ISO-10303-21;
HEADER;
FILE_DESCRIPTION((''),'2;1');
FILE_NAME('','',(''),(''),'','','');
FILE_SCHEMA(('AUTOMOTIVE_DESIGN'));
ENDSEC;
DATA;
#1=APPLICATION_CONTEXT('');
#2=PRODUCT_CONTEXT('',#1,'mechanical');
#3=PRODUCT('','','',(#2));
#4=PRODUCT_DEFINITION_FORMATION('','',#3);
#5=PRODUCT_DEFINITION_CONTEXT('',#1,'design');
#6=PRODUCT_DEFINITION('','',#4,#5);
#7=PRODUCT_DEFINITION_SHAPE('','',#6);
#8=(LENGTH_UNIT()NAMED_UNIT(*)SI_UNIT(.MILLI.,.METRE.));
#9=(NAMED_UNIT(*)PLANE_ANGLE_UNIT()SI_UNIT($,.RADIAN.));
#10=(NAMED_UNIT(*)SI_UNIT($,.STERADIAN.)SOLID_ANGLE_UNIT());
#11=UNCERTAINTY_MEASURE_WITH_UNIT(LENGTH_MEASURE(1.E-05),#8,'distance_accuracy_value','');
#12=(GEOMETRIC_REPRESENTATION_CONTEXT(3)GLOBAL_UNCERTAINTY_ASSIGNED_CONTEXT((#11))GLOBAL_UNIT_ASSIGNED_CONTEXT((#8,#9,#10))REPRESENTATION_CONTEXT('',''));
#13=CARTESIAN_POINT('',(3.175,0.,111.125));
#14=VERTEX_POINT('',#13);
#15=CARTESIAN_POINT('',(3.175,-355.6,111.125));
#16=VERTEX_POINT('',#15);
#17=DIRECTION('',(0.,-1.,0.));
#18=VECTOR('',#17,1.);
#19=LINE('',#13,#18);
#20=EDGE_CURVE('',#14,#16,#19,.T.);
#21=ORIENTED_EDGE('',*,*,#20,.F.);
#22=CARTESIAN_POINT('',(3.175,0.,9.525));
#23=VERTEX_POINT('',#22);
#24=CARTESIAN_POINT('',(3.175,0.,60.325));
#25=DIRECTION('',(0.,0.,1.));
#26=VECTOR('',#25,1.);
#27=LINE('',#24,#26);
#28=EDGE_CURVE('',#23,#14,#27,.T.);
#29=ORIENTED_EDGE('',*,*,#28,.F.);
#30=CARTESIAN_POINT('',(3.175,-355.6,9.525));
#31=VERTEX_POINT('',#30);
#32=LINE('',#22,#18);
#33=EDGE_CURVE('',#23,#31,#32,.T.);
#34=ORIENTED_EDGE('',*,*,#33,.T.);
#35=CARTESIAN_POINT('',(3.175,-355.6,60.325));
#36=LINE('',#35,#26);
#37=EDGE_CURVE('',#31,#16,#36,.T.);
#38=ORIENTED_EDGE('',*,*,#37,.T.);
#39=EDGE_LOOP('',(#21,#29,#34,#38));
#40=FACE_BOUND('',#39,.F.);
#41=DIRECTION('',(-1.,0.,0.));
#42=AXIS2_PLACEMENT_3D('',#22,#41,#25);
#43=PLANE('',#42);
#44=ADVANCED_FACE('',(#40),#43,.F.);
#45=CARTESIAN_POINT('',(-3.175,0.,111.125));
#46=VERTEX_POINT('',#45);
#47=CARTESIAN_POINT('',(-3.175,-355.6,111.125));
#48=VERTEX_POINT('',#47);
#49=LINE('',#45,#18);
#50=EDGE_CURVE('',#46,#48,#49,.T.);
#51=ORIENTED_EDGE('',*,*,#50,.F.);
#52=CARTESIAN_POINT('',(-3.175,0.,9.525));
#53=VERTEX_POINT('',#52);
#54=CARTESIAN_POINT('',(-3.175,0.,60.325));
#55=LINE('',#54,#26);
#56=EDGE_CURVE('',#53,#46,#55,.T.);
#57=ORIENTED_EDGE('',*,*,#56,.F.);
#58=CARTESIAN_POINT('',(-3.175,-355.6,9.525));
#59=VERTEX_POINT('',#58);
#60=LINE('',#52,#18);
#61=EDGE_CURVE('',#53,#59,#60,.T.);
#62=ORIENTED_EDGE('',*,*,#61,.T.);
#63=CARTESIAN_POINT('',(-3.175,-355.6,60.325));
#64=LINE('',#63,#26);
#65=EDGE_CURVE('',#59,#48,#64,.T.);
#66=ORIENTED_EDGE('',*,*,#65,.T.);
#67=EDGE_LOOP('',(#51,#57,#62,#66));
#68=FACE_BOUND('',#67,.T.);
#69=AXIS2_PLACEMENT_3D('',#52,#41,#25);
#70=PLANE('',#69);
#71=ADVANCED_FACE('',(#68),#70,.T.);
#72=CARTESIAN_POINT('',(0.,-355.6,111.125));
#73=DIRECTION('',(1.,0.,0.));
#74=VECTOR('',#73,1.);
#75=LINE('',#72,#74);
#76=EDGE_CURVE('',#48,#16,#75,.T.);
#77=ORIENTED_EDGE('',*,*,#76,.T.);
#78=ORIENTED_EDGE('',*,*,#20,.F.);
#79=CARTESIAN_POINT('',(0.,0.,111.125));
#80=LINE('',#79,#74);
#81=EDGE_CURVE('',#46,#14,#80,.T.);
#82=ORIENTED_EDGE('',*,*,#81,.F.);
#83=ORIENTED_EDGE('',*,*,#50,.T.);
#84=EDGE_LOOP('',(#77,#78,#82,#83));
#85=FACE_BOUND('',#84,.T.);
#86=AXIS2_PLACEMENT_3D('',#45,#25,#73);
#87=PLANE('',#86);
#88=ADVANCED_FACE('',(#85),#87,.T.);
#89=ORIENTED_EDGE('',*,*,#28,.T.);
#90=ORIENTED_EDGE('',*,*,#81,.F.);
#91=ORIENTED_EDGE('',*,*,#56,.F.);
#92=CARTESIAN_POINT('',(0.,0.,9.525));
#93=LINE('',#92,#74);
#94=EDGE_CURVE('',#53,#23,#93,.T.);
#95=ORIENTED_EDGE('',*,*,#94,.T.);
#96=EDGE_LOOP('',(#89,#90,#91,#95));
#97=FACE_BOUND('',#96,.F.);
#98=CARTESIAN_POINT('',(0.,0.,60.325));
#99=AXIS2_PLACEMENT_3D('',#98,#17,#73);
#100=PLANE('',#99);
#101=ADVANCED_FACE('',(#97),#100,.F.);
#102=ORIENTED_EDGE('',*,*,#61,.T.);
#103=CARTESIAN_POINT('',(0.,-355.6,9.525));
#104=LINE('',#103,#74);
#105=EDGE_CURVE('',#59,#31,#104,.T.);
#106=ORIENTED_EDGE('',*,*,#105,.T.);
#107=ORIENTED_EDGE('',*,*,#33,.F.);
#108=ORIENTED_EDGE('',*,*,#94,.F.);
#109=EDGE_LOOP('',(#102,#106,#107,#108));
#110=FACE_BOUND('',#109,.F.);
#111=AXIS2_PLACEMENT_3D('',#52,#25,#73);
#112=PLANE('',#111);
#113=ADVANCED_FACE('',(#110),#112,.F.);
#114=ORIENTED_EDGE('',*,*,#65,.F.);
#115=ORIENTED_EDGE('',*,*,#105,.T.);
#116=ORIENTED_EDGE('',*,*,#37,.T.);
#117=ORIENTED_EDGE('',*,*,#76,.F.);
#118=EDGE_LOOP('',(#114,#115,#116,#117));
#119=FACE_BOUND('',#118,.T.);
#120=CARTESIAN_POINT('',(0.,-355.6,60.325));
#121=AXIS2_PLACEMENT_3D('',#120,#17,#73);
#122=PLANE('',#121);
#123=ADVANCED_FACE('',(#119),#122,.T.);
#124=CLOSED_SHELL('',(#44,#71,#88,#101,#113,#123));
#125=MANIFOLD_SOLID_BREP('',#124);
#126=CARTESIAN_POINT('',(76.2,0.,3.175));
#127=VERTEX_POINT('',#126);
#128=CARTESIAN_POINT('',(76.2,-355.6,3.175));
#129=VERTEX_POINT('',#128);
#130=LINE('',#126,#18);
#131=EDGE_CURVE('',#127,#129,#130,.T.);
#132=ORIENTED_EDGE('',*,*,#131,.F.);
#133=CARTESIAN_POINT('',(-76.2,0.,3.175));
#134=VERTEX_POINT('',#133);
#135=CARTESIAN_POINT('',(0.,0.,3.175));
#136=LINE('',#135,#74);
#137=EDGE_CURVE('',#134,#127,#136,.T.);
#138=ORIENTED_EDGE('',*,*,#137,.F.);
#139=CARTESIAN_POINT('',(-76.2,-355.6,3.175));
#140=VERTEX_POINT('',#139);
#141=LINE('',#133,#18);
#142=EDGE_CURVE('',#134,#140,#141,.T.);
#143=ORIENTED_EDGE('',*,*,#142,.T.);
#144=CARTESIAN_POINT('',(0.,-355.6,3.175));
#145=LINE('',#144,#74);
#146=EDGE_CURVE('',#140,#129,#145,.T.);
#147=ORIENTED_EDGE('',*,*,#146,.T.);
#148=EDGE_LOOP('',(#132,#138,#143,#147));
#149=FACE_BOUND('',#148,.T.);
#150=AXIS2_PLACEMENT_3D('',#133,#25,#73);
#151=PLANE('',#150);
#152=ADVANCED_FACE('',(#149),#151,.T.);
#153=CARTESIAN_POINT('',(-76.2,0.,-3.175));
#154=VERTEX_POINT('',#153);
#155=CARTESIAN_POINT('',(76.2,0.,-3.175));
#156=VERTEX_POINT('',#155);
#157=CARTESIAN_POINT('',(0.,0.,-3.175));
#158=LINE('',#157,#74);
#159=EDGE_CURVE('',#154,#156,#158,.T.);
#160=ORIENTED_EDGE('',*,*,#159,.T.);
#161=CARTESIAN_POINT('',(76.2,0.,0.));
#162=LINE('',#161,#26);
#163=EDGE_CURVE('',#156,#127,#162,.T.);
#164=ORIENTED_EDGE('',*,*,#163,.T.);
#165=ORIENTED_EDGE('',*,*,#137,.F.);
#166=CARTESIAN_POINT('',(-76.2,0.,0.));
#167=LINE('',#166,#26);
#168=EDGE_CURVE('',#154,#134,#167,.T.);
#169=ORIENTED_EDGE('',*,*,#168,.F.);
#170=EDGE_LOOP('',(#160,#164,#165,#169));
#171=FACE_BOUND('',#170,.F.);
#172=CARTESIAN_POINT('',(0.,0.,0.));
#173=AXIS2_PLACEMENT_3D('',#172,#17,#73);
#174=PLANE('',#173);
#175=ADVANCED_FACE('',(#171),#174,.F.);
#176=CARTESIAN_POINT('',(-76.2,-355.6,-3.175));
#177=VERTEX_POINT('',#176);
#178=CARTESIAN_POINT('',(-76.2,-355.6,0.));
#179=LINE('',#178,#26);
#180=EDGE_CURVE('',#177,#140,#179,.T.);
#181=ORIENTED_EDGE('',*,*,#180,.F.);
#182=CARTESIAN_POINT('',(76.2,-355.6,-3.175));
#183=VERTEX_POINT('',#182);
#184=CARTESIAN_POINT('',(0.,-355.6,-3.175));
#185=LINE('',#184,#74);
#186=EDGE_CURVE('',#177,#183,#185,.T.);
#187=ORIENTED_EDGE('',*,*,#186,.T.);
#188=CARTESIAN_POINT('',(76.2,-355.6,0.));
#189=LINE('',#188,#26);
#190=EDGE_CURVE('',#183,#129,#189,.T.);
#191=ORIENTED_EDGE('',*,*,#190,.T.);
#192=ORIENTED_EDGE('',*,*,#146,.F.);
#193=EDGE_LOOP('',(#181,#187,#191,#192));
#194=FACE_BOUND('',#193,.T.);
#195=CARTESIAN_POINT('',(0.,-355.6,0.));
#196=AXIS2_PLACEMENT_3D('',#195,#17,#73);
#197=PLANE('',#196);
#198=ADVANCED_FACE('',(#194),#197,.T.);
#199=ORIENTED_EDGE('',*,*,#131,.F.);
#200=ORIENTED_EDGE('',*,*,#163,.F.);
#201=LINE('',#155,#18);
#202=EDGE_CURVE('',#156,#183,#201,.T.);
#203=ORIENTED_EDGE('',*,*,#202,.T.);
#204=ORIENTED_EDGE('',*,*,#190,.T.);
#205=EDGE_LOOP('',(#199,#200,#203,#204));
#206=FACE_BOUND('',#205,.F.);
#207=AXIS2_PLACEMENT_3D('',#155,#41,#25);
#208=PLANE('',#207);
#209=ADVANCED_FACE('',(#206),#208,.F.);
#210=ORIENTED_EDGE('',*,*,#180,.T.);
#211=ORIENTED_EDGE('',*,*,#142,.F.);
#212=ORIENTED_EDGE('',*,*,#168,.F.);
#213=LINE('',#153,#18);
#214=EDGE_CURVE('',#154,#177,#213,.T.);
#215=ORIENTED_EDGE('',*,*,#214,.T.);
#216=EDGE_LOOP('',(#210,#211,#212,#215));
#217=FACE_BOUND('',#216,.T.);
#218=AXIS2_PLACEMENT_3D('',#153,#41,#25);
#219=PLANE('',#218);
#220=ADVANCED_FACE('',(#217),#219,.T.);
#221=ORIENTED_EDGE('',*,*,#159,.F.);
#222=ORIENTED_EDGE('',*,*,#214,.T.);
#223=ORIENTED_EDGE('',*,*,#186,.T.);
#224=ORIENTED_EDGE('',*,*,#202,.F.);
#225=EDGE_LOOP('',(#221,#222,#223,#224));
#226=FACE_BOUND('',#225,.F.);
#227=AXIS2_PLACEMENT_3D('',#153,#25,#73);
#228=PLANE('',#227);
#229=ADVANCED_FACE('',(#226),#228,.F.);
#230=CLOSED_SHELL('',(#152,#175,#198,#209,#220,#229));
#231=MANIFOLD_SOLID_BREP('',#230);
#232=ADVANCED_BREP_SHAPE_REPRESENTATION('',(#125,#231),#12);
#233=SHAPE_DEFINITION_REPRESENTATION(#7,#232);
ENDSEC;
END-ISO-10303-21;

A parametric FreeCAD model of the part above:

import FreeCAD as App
import Part
import Sketcher
Q = App.Units.Quantity

doc = App.newDocument("Part")
body = doc.addObject("PartDesign::Body", "Body")

# Sketch on XZ plane
sketch1 = body.newObject("Sketcher::SketchObject", "Sketch")
sketch1.AttachmentSupport = (doc.getObject("XZ_Plane"), [""])
sketch1.MapMode = "FlatFace"
sketch1.addGeometry(Part.LineSegment(App.Vector(-76, 3, 0), App.Vector(-76, -3, 0)), False)
sketch1.addGeometry(Part.LineSegment(App.Vector(-76, -3, 0), App.Vector(76, -3, 0)), False)
sketch1.addGeometry(Part.LineSegment(App.Vector(76, -3, 0), App.Vector(76, 3, 0)), False)
sketch1.addGeometry(Part.LineSegment(App.Vector(76, 3, 0), App.Vector(-76, 3, 0)), False)
sketch1.addConstraint(Sketcher.Constraint("Coincident", 0, 2, 1, 1))
sketch1.addConstraint(Sketcher.Constraint("Coincident", 1, 2, 2, 1))
sketch1.addConstraint(Sketcher.Constraint("Coincident", 2, 2, 3, 1))
sketch1.addConstraint(Sketcher.Constraint("Coincident", 3, 2, 0, 1))
sketch1.addConstraint(Sketcher.Constraint("Vertical", 0))
sketch1.addConstraint(Sketcher.Constraint("Horizontal", 1))
sketch1.addConstraint(Sketcher.Constraint("Vertical", 2))
sketch1.addConstraint(Sketcher.Constraint("Horizontal", 3))
sketch1.addConstraint(Sketcher.Constraint("Symmetric", 0, 2, 2, 2, -1, 1))
sketch1.addConstraint(Sketcher.Constraint("DistanceX", 1, 1, 1, 2, Q("6 in")))
sketch1.addConstraint(Sketcher.Constraint("DistanceY", 0, 2, 0, 1, Q("0.25 in")))
pad1 = body.newObject("PartDesign::Pad", "Pad")
pad1.Profile = sketch1
pad1.Length = Q("14 in")
body2 = doc.addObject("PartDesign::Body", "Body001")

# Sketch on XZ plane
sketch2 = body2.newObject("Sketcher::SketchObject", "Sketch001")
sketch2.AttachmentSupport = (doc.getObject("XZ_Plane001"), [""])
sketch2.MapMode = "FlatFace"
sketch2.addGeometry(Part.LineSegment(App.Vector(-3, 111, 0), App.Vector(-3, 10, 0)), False)
sketch2.addGeometry(Part.LineSegment(App.Vector(-3, 10, 0), App.Vector(3, 10, 0)), False)
sketch2.addGeometry(Part.LineSegment(App.Vector(3, 10, 0), App.Vector(3, 111, 0)), False)
sketch2.addGeometry(Part.LineSegment(App.Vector(3, 111, 0), App.Vector(-3, 111, 0)), False)
sketch2.addConstraint(Sketcher.Constraint("Coincident", 0, 2, 1, 1))
sketch2.addConstraint(Sketcher.Constraint("Coincident", 1, 2, 2, 1))
sketch2.addConstraint(Sketcher.Constraint("Coincident", 2, 2, 3, 1))
sketch2.addConstraint(Sketcher.Constraint("Coincident", 3, 2, 0, 1))
sketch2.addConstraint(Sketcher.Constraint("Vertical", 0))
sketch2.addConstraint(Sketcher.Constraint("Horizontal", 1))
sketch2.addConstraint(Sketcher.Constraint("Vertical", 2))
sketch2.addConstraint(Sketcher.Constraint("Horizontal", 3))
sketch2.addConstraint(Sketcher.Constraint("DistanceY", 0, 2, 0, 1, Q("4 in")))
sketch2.addConstraint(Sketcher.Constraint("DistanceX", 1, 1, 1, 2, Q("0.25 in")))
sketch2.addConstraint(Sketcher.Constraint("DistanceX", 0, 2, -1, 1, Q("0.125 in")))
sketch2.addConstraint(Sketcher.Constraint("DistanceY", -1, 1, 0, 2, Q("0.375 in")))
pad2 = body2.newObject("PartDesign::Pad", "Pad001")
pad2.Profile = sketch2
pad2.Length = Q("14 in")

doc.recompute()
